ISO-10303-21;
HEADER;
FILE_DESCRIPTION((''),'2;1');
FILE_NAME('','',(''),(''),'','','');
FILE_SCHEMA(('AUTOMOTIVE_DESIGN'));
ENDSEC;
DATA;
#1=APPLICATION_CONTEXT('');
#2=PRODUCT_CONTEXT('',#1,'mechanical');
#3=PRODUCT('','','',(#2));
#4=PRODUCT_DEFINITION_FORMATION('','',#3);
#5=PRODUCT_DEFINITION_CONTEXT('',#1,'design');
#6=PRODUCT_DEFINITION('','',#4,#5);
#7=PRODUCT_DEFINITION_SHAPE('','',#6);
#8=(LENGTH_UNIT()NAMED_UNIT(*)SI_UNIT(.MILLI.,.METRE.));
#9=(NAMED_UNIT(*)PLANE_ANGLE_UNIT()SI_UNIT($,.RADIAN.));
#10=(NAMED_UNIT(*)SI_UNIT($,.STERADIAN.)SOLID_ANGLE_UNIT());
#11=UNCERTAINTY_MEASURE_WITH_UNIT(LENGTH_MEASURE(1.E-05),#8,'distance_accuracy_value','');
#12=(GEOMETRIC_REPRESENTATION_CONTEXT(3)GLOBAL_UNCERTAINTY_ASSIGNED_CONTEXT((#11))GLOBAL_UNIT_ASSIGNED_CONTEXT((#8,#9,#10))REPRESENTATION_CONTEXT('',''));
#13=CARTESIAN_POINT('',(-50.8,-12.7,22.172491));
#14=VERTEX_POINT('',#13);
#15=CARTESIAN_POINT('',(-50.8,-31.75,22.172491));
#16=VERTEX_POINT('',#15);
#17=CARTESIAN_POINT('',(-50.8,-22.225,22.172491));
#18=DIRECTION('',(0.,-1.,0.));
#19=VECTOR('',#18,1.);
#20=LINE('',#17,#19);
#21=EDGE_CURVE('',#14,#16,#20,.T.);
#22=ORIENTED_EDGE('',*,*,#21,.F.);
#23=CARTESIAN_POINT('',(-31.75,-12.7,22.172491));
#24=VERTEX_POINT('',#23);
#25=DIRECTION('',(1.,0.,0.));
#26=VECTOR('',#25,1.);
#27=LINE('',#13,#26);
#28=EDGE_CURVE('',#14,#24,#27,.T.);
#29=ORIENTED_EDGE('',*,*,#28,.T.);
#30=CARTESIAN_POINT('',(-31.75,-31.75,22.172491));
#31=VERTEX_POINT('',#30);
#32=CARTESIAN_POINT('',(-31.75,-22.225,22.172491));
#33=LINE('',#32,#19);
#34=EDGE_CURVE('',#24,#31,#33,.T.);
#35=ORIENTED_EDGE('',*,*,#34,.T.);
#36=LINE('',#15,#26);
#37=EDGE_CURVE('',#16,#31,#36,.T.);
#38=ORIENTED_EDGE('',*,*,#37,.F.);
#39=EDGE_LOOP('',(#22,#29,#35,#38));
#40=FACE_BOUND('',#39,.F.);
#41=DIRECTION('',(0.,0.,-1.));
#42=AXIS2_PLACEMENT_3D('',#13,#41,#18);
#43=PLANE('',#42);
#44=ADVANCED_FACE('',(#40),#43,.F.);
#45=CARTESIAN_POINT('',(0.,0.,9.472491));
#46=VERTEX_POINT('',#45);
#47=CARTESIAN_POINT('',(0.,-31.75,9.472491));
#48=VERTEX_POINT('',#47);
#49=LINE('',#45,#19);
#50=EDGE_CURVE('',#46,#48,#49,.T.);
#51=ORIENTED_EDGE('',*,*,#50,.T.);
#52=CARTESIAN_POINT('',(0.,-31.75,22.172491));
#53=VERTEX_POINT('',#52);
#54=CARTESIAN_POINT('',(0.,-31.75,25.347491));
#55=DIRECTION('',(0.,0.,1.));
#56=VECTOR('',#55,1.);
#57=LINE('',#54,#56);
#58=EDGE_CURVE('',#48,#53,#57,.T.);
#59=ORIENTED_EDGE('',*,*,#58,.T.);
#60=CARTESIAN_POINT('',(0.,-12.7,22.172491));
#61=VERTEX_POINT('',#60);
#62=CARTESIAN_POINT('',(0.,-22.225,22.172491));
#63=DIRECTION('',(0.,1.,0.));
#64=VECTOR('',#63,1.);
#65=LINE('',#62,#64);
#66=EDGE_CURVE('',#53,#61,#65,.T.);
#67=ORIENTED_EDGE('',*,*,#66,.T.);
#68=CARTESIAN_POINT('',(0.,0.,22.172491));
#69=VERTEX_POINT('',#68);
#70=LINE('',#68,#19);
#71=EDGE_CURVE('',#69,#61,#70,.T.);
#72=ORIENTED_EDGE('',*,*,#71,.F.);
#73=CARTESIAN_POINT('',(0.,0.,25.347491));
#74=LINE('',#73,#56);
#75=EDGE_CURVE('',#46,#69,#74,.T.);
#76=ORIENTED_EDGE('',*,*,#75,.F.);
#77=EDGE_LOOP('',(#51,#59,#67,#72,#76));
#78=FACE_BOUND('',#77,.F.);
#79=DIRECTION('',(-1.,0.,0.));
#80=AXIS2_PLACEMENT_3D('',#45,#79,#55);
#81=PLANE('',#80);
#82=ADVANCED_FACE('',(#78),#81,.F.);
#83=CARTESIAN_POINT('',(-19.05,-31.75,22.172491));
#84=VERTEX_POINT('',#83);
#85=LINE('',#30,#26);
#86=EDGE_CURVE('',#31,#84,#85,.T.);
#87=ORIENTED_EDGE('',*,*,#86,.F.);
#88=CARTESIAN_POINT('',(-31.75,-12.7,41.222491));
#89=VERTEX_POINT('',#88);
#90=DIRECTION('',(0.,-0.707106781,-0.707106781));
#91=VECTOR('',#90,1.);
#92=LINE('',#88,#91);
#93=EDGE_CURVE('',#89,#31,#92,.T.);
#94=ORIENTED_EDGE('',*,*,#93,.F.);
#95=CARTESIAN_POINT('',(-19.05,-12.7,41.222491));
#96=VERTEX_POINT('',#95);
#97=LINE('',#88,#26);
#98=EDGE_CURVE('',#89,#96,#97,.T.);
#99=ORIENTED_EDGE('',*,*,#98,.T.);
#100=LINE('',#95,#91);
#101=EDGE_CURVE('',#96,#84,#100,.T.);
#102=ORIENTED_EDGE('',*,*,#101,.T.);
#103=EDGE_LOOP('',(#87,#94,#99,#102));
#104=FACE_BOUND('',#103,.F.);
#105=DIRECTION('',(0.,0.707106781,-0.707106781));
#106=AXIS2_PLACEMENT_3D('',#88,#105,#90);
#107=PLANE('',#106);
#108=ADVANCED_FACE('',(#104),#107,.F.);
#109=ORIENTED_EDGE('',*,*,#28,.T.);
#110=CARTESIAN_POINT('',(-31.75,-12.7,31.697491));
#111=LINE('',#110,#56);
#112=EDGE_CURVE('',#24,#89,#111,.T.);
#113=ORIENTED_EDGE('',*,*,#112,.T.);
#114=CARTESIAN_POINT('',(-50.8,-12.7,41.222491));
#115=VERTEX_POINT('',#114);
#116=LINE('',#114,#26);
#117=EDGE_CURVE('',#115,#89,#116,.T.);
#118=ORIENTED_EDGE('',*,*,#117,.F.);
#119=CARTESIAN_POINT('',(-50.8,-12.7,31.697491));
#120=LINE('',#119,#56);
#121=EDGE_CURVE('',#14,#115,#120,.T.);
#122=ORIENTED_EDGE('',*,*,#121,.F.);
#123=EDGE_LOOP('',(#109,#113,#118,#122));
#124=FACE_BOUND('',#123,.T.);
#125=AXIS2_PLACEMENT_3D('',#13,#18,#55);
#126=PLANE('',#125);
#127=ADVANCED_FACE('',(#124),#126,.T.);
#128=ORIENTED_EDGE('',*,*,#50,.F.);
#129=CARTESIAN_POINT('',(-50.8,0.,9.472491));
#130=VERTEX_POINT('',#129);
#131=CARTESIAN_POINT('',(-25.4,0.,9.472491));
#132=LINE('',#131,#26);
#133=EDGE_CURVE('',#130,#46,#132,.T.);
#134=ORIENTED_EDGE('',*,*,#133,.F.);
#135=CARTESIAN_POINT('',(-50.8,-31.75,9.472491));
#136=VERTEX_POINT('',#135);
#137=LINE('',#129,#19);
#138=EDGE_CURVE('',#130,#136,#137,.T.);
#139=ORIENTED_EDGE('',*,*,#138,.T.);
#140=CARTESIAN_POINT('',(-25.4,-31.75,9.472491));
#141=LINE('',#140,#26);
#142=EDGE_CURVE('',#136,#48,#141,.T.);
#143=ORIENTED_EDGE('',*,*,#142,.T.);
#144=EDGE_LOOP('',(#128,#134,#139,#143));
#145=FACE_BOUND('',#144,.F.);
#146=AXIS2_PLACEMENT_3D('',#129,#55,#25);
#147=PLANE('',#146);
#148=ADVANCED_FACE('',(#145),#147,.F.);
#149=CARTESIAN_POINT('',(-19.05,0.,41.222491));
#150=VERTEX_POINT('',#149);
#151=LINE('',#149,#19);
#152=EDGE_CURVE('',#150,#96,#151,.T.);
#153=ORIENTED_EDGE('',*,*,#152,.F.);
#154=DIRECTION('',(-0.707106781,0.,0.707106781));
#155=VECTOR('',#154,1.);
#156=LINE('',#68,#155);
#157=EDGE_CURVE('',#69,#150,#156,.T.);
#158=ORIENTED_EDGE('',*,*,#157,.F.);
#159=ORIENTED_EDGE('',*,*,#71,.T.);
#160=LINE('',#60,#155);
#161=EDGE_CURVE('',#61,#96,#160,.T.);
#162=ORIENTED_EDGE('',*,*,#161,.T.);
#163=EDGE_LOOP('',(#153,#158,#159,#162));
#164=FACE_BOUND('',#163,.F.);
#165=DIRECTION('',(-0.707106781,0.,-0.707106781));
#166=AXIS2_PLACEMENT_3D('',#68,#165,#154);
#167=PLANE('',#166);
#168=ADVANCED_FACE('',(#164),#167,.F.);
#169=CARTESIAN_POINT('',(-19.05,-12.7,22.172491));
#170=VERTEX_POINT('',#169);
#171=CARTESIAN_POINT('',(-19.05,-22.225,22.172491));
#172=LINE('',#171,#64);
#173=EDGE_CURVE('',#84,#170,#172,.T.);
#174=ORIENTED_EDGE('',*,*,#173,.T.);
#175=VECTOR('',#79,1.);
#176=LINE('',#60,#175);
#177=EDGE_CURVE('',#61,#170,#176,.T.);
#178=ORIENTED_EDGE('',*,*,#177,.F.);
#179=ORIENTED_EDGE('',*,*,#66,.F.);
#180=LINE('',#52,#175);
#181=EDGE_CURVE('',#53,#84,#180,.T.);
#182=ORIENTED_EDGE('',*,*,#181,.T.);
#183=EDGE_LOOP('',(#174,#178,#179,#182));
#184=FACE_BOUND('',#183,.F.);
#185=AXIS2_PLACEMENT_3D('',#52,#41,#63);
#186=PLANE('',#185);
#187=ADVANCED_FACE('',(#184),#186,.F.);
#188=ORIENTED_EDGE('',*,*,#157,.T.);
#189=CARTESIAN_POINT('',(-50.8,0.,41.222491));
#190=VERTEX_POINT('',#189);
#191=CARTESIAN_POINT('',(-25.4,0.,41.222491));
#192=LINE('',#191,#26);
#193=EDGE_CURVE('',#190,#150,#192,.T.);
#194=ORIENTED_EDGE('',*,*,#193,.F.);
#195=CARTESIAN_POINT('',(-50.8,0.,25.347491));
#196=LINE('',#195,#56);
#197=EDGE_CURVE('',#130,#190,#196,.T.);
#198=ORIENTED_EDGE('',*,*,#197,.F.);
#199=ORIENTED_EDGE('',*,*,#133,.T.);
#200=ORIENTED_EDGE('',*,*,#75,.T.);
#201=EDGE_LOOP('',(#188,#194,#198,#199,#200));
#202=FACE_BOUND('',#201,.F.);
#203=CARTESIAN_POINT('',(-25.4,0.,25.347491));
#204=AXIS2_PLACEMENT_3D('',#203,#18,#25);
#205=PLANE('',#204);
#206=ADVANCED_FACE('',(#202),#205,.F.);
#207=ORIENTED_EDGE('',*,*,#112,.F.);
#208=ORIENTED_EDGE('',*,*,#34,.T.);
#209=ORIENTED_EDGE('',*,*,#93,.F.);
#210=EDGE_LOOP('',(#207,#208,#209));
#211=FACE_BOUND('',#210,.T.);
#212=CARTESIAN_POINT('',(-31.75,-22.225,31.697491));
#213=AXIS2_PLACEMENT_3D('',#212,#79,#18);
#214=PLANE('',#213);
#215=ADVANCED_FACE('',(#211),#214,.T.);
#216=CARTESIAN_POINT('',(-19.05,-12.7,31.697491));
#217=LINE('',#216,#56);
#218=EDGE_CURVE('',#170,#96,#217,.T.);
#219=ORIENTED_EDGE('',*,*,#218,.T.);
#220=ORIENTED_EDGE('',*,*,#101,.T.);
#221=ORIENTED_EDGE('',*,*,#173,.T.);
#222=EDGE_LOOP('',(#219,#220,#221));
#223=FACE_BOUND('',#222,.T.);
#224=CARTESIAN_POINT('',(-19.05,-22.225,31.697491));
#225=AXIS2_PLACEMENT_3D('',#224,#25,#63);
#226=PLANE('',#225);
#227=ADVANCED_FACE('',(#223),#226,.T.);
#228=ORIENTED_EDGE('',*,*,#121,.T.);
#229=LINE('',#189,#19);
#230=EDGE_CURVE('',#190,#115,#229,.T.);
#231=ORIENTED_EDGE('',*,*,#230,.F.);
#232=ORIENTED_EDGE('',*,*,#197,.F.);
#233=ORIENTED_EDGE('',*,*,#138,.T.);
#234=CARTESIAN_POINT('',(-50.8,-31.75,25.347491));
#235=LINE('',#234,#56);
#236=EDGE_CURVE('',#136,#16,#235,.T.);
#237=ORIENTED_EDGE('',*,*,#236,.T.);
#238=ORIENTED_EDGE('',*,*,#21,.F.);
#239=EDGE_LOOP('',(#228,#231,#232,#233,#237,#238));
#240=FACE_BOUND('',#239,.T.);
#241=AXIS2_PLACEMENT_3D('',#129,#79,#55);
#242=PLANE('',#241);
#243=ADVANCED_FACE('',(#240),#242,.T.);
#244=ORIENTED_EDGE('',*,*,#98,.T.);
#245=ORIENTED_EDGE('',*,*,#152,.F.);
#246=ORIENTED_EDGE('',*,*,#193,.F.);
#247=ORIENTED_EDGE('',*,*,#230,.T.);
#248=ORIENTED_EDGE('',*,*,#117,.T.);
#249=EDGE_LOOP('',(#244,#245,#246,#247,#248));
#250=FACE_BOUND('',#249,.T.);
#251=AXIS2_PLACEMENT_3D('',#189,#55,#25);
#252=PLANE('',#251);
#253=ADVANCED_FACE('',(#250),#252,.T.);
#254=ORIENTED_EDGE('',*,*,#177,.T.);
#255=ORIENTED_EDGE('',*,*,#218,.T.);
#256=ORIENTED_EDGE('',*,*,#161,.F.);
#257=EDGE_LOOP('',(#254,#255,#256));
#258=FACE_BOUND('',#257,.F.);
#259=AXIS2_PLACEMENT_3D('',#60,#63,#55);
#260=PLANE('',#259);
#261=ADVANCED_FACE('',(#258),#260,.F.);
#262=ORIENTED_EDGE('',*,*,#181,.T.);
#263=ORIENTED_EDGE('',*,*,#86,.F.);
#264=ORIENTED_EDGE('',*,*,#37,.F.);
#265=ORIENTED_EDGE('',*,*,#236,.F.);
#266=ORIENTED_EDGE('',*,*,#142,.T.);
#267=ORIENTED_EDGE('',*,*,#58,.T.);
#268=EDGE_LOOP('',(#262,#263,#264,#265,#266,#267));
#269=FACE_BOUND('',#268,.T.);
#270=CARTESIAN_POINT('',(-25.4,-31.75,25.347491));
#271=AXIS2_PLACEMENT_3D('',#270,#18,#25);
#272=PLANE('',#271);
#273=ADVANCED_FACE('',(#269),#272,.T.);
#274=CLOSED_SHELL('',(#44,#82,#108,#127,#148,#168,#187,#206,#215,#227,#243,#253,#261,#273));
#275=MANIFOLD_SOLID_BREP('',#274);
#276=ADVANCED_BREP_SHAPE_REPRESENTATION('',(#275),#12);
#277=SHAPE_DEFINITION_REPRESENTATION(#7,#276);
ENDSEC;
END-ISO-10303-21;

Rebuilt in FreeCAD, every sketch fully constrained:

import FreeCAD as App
import Part
import Sketcher

V = App.Vector
Q = App.Units.Quantity

doc = App.newDocument("Part")
body = doc.addObject("PartDesign::Body", "Body")

# Sketch on XZ plane
sketch1 = doc.addObject("Sketcher::SketchObject", "Sketch")
body.addObject(sketch1)
sketch1.AttachmentSupport = (doc.XZ_Plane, [""])
sketch1.MapMode = "FlatFace"
sketch1.addGeometry([
    Part.LineSegment(V(-51, 41, 0), V(-51, 9, 0)),
    Part.LineSegment(V(-51, 9, 0), V(0, 9, 0)),
    Part.LineSegment(V(0, 9, 0), V(0, 41, 0)),
    Part.LineSegment(V(0, 41, 0), V(-51, 41, 0)),
], False)
sketch1.addConstraint([
    Sketcher.Constraint("Coincident", 0, 2, 1, 1),
    Sketcher.Constraint("Coincident", 1, 2, 2, 1),
    Sketcher.Constraint("Coincident", 2, 2, 3, 1),
    Sketcher.Constraint("Coincident", 3, 2, 0, 1),
    Sketcher.Constraint("Vertical", 0),
    Sketcher.Constraint("Horizontal", 1),
    Sketcher.Constraint("Vertical", 2),
    Sketcher.Constraint("Horizontal", 3),
    Sketcher.Constraint("PointOnObject", 1, 2, -2),
    Sketcher.Constraint("DistanceX", 1, 1, 1, 2, Q("2 in")),
    Sketcher.Constraint("DistanceY", 0, 2, 0, 1, Q("1.25 in")),
    Sketcher.Constraint("DistanceY", -1, 1, 0, 2, 9.472491),
])
pad1 = doc.addObject("PartDesign::Pad", "Pad")
body.addObject(pad1)
pad1.Profile = sketch1
pad1.Length = Q("1.25 in")

# Sketch on YZ plane
sketch2 = doc.addObject("Sketcher::SketchObject", "Sketch001")
body.addObject(sketch2)
sketch2.AttachmentSupport = (doc.YZ_Plane, [""])
sketch2.MapMode = "FlatFace"
sketch2.AttachmentOffset = App.Placement(V(0, 0, -2 * 25.4), App.Rotation())
sketch2.addGeometry([
    Part.LineSegment(V(-13, 41, 0), V(-13, 22, 0)),
    Part.LineSegment(V(-13, 22, 0), V(-32, 22, 0)),
    Part.LineSegment(V(-32, 22, 0), V(-32, 41, 0)),
    Part.LineSegment(V(-32, 41, 0), V(-13, 41, 0)),
], False)
sketch2.addConstraint([
    Sketcher.Constraint("Coincident", 0, 2, 1, 1),
    Sketcher.Constraint("Coincident", 1, 2, 2, 1),
    Sketcher.Constraint("Coincident", 2, 2, 3, 1),
    Sketcher.Constraint("Coincident", 3, 2, 0, 1),
    Sketcher.Constraint("Vertical", 0),
    Sketcher.Constraint("Horizontal", 1),
    Sketcher.Constraint("Vertical", 2),
    Sketcher.Constraint("Horizontal", 3),
    Sketcher.Constraint("Equal", 3, 0),
    Sketcher.Constraint("DistanceX", 1, 2, 1, 1, Q("0.75 in")),
    Sketcher.Constraint("DistanceX", 0, 2, -1, 1, Q("0.5 in")),
    Sketcher.Constraint("DistanceY", -1, 1, 0, 2, 22.172491),
])
pocket1 = doc.addObject("PartDesign::Pocket", "Pocket")
body.addObject(pocket1)
pocket1.Profile = sketch2
pocket1.Length = Q("0.75 in")
pocket1.Reversed = True

# Sketch on YZ plane
sketch3 = doc.addObject("Sketcher::SketchObject", "Sketch002")
body.addObject(sketch3)
sketch3.AttachmentSupport = (doc.YZ_Plane, [""])
sketch3.MapMode = "FlatFace"
sketch3.AttachmentOffset = App.Placement(V(0, 0, -1.25 * 25.4), App.Rotation())
sketch3.addGeometry([
    Part.LineSegment(V(-32, 41, 0), V(-13, 41, 0)),
    Part.LineSegment(V(-13, 41, 0), V(-32, 22, 0)),
    Part.LineSegment(V(-32, 22, 0), V(-32, 41, 0)),
], False)
sketch3.addConstraint([
    Sketcher.Constraint("Coincident", 0, 2, 1, 1),
    Sketcher.Constraint("Coincident", 1, 2, 2, 1),
    Sketcher.Constraint("Coincident", 2, 2, 0, 1),
    Sketcher.Constraint("Horizontal", 0),
    Sketcher.Constraint("Vertical", 2),
    Sketcher.Constraint("Equal", 0, 2),
    Sketcher.Constraint("DistanceX", 0, 1, 0, 2, Q("0.75 in")),
    Sketcher.Constraint("DistanceX", 0, 2, -1, 1, Q("0.5 in")),
    Sketcher.Constraint("DistanceY", -1, 1, 0, 2, 41.222491),
])
pocket2 = doc.addObject("PartDesign::Pocket", "Pocket001")
body.addObject(pocket2)
pocket2.Profile = sketch3
pocket2.Length = Q("0.5 in")
pocket2.Reversed = True

# Sketch on YZ plane
sketch4 = doc.addObject("Sketcher::SketchObject", "Sketch003")
body.addObject(sketch4)
sketch4.AttachmentSupport = (doc.YZ_Plane, [""])
sketch4.MapMode = "FlatFace"
sketch4.addGeometry([
    Part.LineSegment(V(-32, 41, 0), V(-32, 22, 0)),
    Part.LineSegment(V(-32, 22, 0), V(-13, 22, 0)),
    Part.LineSegment(V(-13, 22, 0), V(-13, 41, 0)),
    Part.LineSegment(V(-13, 41, 0), V(-32, 41, 0)),
], False)
sketch4.addConstraint([
    Sketcher.Constraint("Coincident", 0, 2, 1, 1),
    Sketcher.Constraint("Coincident", 1, 2, 2, 1),
    Sketcher.Constraint("Coincident", 2, 2, 3, 1),
    Sketcher.Constraint("Coincident", 3, 2, 0, 1),
    Sketcher.Constraint("Vertical", 0),
    Sketcher.Constraint("Horizontal", 1),
    Sketcher.Constraint("Vertical", 2),
    Sketcher.Constraint("Horizontal", 3),
    Sketcher.Constraint("Equal", 3, 0),
    Sketcher.Constraint("DistanceX", 1, 1, 1, 2, Q("0.75 in")),
    Sketcher.Constraint("DistanceX", 1, 2, -1, 1, Q("0.5 in")),
    Sketcher.Constraint("DistanceY", -1, 1, 0, 2, 22.172491),
])
pocket3 = doc.addObject("PartDesign::Pocket", "Pocket002")
body.addObject(pocket3)
pocket3.Profile = sketch4
pocket3.Length = Q("0.75 in")

# Sketch on XZ plane
sketch5 = doc.addObject("Sketcher::SketchObject", "Sketch004")
body.addObject(sketch5)
sketch5.AttachmentSupport = (doc.XZ_Plane, [""])
sketch5.MapMode = "FlatFace"
sketch5.addGeometry([
    Part.LineSegment(V(0, 22, 0), V(-19, 41, 0)),
    Part.LineSegment(V(-19, 41, 0), V(0, 41, 0)),
    Part.LineSegment(V(0, 41, 0), V(0, 22, 0)),
], False)
sketch5.addConstraint([
    Sketcher.Constraint("Coincident", 0, 2, 1, 1),
    Sketcher.Constraint("Coincident", 1, 2, 2, 1),
    Sketcher.Constraint("Coincident", 2, 2, 0, 1),
    Sketcher.Constraint("Horizontal", 1),
    Sketcher.Constraint("Vertical", 2),
    Sketcher.Constraint("PointOnObject", 1, 2, -2),
    Sketcher.Constraint("Equal", 1, 2),
    Sketcher.Constraint("DistanceX", 1, 1, 1, 2, Q("0.75 in")),
    Sketcher.Constraint("DistanceY", -1, 1, 0, 2, 41.222491),
])
pocket4 = doc.addObject("PartDesign::Pocket", "Pocket003")
body.addObject(pocket4)
pocket4.Profile = sketch5
pocket4.Length = Q("0.5 in")
pocket4.Reversed = True

doc.recompute()
